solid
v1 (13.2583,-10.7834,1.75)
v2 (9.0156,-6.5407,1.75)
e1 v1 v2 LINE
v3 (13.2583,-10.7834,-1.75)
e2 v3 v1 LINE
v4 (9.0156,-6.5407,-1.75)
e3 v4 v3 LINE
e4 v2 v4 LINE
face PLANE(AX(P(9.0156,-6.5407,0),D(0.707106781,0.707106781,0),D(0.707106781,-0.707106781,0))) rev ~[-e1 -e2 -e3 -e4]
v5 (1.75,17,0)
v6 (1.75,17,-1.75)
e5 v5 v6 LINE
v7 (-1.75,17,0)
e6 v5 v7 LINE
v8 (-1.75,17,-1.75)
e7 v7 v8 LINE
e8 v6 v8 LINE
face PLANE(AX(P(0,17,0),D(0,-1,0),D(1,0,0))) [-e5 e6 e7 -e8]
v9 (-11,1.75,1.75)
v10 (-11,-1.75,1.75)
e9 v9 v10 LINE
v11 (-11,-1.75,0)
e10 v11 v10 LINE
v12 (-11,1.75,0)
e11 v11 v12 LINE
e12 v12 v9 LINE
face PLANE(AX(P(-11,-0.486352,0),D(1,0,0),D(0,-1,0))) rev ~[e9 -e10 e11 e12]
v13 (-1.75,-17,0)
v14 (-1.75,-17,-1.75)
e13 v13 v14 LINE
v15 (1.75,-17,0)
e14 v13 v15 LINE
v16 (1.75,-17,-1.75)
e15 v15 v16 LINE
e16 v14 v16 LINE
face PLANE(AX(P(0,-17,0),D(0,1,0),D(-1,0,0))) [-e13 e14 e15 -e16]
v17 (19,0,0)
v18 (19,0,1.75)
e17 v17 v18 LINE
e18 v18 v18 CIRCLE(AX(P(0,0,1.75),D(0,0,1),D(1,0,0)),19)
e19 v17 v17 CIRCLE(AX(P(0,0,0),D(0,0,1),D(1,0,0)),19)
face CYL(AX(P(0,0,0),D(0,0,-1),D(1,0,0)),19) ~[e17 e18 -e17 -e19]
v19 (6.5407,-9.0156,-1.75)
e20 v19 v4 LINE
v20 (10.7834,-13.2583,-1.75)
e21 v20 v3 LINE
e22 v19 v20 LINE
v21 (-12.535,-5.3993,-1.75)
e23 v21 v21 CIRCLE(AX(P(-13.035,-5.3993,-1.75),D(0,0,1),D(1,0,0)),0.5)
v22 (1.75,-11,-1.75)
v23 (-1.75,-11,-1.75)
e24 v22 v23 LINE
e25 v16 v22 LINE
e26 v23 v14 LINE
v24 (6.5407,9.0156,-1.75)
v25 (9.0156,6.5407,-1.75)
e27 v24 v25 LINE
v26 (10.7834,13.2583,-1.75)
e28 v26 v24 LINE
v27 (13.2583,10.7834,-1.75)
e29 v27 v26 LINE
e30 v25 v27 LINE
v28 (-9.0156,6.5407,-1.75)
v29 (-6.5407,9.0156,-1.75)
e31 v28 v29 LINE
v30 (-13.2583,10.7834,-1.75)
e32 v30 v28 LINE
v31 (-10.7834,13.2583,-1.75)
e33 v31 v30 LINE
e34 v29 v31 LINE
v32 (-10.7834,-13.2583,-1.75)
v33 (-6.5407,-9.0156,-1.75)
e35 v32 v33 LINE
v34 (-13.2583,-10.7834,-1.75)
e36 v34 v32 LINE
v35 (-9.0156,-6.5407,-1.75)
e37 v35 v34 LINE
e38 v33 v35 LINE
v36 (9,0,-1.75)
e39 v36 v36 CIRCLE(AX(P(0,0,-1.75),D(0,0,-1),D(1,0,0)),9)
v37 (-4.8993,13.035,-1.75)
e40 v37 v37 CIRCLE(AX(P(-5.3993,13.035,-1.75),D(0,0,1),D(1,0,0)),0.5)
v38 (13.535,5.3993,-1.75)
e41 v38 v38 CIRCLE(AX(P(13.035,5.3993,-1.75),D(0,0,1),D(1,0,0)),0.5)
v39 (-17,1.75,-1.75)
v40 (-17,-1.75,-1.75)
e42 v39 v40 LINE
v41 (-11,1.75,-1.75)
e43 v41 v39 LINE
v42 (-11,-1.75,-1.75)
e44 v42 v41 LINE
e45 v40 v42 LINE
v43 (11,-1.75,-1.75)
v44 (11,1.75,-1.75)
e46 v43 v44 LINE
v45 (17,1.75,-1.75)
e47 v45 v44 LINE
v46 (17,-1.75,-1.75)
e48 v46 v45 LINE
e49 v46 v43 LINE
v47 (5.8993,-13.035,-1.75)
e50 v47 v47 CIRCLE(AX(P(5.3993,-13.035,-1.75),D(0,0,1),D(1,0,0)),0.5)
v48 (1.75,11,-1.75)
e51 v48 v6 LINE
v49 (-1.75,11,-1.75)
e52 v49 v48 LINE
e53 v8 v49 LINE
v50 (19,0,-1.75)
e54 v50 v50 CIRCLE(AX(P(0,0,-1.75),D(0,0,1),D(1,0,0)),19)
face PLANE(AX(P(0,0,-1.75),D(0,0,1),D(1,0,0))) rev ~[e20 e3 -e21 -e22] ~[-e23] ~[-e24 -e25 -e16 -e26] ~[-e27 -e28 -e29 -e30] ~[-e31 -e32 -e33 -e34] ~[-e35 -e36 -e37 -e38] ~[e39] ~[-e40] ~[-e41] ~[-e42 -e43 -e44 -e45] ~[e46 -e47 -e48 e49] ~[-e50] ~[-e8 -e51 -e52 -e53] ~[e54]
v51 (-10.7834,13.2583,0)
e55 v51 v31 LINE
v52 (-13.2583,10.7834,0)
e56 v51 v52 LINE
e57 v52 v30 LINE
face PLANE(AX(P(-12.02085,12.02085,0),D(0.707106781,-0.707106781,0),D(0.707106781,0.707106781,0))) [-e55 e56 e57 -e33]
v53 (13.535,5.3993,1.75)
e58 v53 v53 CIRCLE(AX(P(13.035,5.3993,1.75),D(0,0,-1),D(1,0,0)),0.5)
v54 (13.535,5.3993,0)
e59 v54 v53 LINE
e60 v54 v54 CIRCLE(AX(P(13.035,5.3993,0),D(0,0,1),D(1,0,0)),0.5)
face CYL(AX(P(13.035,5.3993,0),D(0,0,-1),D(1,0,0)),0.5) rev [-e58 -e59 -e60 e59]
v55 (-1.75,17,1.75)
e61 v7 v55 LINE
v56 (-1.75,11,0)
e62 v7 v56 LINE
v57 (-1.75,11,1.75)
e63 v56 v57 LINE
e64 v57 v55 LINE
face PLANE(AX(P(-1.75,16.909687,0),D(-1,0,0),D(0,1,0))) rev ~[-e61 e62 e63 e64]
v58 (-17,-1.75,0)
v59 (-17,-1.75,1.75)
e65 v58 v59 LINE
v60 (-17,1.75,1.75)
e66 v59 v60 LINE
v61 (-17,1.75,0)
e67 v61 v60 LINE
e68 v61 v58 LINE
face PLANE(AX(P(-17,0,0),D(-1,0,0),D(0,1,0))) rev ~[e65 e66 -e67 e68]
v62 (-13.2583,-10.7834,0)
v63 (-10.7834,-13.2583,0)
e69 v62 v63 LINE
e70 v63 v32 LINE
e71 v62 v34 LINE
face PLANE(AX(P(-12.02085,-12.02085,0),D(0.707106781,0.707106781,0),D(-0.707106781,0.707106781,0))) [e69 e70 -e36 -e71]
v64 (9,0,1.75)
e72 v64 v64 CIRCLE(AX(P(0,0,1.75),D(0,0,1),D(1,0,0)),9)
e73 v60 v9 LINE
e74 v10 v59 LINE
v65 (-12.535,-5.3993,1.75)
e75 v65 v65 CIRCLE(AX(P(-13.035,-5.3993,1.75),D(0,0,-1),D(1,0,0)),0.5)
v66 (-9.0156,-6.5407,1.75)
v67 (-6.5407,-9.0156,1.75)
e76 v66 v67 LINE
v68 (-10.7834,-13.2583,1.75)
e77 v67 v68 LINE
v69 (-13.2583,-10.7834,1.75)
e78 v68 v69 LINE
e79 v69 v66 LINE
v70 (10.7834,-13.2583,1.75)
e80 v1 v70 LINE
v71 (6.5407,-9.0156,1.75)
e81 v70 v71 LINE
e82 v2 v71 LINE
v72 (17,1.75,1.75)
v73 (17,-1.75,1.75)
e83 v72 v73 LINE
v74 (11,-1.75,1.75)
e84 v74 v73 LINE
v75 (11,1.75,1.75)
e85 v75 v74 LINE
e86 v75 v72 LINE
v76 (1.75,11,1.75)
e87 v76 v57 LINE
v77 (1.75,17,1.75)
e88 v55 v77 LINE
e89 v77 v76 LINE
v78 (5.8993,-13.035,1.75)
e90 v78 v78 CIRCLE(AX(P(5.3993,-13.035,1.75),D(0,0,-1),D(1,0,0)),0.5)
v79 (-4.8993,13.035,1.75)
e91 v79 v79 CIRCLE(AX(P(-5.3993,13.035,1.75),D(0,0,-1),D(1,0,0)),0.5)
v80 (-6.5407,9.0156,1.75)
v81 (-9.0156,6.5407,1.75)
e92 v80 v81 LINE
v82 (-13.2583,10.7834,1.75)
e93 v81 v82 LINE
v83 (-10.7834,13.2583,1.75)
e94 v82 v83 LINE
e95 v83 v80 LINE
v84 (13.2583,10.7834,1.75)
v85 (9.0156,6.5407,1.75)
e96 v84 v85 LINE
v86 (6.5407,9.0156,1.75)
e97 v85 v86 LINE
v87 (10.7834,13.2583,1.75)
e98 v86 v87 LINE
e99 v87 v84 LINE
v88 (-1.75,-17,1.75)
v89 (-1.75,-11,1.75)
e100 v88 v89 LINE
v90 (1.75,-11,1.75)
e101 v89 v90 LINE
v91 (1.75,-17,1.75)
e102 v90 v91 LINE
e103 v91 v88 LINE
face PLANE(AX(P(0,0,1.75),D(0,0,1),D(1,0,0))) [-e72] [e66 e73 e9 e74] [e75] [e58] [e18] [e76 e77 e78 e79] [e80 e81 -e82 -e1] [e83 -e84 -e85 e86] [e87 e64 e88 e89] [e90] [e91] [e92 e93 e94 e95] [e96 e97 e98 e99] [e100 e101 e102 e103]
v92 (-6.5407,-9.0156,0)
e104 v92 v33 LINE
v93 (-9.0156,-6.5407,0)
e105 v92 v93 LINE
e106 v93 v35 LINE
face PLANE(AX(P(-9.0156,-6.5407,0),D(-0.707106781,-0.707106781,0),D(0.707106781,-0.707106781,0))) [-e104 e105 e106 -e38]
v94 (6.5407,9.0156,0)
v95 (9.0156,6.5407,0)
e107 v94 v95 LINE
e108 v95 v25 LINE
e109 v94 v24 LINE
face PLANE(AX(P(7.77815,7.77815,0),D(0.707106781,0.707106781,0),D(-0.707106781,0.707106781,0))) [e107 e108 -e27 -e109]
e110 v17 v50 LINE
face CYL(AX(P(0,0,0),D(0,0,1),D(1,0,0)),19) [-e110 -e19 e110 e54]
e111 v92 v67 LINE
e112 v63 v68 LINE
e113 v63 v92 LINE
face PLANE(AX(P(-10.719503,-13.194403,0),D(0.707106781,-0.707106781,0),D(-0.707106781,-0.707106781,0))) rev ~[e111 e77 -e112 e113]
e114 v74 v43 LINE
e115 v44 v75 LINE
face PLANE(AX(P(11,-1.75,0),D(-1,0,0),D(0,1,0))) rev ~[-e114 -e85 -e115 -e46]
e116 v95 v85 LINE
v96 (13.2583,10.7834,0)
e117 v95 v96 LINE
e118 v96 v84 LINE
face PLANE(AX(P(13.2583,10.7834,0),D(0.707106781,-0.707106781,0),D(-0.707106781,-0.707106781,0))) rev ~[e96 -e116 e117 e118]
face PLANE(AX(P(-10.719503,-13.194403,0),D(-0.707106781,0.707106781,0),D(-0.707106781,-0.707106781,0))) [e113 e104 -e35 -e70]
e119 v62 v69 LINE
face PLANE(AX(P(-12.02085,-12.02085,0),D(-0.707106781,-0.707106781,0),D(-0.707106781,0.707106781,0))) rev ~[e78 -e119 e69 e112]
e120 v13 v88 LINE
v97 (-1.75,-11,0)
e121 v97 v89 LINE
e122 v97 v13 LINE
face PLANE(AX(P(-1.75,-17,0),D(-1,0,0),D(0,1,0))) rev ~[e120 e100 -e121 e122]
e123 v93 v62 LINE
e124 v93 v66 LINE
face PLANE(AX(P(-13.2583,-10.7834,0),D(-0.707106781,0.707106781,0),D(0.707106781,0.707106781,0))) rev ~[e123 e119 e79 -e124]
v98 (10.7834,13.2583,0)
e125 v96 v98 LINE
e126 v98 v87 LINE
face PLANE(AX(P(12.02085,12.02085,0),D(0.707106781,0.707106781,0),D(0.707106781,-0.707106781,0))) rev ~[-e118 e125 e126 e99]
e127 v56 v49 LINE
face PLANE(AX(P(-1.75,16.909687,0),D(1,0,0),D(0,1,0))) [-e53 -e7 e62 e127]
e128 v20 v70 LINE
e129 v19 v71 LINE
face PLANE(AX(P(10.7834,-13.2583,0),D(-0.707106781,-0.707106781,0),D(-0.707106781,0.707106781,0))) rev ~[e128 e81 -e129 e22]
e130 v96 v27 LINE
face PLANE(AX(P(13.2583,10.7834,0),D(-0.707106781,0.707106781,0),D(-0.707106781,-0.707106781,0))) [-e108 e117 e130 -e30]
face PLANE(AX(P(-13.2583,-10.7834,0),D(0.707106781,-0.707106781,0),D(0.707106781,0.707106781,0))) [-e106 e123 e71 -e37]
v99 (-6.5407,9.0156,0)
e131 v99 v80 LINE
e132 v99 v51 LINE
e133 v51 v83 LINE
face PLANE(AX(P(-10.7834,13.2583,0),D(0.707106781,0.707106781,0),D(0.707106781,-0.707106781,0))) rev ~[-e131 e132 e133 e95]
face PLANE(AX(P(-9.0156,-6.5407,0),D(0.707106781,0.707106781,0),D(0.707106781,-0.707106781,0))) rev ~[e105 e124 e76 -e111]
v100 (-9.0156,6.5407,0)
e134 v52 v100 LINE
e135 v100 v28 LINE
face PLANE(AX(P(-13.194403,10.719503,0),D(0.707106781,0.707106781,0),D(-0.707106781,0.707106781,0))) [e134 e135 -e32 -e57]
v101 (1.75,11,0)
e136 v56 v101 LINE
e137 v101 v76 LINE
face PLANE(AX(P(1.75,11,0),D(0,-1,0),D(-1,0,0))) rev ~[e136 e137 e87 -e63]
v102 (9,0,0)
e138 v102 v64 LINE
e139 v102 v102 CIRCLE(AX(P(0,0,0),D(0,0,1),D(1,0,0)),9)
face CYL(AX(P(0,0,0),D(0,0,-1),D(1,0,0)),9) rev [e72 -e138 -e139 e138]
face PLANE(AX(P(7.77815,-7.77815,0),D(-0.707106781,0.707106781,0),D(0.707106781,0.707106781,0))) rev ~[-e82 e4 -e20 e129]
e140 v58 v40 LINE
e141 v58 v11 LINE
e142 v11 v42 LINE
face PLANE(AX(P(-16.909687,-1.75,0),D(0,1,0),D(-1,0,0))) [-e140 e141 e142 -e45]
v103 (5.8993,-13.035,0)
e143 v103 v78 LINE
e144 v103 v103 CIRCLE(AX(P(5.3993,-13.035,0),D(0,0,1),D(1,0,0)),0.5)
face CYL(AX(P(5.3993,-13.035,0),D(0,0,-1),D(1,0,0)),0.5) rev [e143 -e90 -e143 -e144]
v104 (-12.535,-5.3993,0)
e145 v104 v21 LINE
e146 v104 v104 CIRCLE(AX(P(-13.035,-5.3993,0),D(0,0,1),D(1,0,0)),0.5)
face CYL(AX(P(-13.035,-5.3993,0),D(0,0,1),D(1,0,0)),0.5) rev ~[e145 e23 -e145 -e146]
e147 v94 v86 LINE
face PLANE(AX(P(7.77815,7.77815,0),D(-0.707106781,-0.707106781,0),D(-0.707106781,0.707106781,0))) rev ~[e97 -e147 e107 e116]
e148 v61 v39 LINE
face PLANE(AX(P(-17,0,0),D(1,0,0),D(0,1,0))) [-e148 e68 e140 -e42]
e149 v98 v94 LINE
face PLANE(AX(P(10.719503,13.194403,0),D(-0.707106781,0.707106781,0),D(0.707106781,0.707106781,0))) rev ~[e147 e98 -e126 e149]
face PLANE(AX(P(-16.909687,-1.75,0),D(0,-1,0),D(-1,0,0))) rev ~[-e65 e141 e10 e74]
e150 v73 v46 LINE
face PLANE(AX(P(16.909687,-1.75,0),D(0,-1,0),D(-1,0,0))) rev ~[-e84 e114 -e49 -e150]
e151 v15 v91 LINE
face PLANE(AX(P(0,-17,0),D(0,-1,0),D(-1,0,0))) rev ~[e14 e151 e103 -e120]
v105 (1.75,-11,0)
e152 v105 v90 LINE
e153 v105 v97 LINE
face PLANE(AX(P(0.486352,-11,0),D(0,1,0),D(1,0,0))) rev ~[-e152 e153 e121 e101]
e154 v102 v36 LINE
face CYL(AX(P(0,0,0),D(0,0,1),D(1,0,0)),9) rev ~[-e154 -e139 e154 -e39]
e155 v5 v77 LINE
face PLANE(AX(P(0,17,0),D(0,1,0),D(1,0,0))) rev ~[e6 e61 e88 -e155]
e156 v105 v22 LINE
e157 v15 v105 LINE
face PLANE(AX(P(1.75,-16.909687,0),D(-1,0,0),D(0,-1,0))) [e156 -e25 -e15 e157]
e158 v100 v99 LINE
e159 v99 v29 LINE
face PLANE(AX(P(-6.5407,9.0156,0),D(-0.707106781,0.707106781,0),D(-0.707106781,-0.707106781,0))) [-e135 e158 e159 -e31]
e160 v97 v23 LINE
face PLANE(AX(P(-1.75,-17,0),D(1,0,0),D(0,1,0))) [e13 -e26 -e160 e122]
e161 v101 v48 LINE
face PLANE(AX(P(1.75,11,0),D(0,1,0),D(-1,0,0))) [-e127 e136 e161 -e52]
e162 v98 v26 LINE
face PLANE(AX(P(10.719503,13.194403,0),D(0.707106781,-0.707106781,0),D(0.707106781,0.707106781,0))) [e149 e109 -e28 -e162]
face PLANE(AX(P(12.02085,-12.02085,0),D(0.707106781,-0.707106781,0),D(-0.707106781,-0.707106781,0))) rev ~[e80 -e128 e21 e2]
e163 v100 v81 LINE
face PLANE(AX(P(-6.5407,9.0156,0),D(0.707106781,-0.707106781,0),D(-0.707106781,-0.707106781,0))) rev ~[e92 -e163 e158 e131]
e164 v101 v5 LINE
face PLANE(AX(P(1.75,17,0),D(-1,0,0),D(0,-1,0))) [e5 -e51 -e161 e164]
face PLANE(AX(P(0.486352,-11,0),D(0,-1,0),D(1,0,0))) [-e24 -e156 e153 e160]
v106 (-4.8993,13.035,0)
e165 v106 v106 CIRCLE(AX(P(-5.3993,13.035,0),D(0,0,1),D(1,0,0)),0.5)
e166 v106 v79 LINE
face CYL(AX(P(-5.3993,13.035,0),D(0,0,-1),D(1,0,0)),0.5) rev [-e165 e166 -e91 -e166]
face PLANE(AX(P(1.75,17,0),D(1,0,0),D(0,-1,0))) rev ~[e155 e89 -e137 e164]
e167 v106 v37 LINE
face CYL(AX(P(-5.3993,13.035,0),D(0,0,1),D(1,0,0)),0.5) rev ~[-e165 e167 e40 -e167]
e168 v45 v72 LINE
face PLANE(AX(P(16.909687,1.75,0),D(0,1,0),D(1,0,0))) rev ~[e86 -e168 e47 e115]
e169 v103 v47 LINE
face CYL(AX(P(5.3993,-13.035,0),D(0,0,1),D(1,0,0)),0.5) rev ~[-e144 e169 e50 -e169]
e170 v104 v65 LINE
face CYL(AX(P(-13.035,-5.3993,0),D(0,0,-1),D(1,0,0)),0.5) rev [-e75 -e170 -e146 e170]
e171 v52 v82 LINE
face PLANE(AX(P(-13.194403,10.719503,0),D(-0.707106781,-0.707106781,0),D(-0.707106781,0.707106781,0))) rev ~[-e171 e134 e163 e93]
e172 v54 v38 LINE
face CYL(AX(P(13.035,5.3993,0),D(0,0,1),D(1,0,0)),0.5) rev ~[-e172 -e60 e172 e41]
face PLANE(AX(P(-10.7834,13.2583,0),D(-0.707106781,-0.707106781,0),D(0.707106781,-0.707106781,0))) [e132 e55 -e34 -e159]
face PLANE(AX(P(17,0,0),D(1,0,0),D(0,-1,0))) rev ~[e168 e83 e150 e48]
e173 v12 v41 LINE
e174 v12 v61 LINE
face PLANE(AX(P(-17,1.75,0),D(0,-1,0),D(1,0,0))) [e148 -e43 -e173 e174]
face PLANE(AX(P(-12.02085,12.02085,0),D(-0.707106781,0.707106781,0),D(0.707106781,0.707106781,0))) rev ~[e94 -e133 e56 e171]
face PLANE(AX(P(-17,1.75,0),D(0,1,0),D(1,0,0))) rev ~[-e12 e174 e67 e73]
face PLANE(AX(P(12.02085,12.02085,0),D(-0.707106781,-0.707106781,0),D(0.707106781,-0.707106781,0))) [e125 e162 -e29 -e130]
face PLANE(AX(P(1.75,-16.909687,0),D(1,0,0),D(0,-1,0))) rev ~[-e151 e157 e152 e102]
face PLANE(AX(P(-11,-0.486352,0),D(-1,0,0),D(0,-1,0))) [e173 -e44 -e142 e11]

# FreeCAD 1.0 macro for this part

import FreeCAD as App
import Part
import Sketcher
from FreeCAD import Vector


def add_polygon(sketch, points):
    """Adds a closed chain of lines whose ends are joined by coincident constraints."""
    first, n = sketch.GeometryCount, len(points)
    for a, b in zip(points, points[1:] + points[:1]):
        sketch.addGeometry(Part.LineSegment(App.Vector(*a, 0), App.Vector(*b, 0)), False)
    for i in range(n):
        sketch.addConstraint(Sketcher.Constraint("Coincident", first + i, 2, first + (i + 1) % n, 1))

doc = App.newDocument("Part")
params = doc.addObject("Spreadsheet::Sheet", "Params")
for row, (alias, value) in enumerate([
    ("sketch1_diameter", "1 mm"),
    ("sketch1_width", "6 mm"),
    ("sketch1_length", "6 mm"),
    ("sketch1_diameter2", "38 mm"),
    ("sketch1_diameter3", "18 mm"),
    ("pad1_length", "3.5 mm"),
], start=1):
    params.set(f"A{row}", alias)
    params.set(f"B{row}", "=" + value)
    params.setAlias(f"B{row}", alias)

body = doc.addObject("PartDesign::Body", "Body")

sketch1 = body.newObject("Sketcher::SketchObject", "Sketch")
sketch1.AttachmentSupport = (doc.getObject("XY_Plane"), [""])
sketch1.MapMode = "FlatFace"
sketch1.addGeometry(Part.Circle(Vector(0, 0, 0), Vector(0, 0, 1), 19), False)
add_polygon(sketch1, [(11, -1.8), (11, 1.8), (17, 1.8), (17, -1.8)])
add_polygon(sketch1, [(9, -6.5), (13.3, -10.8), (10.8, -13.3), (6.5, -9)])
sketch1.addGeometry(Part.Circle(Vector(0, 0, 0), Vector(0, 0, 1), 9), False)
add_polygon(sketch1, [(13.3, 10.8), (9, 6.5), (6.5, 9), (10.8, 13.3)])
add_polygon(sketch1, [(1.8, 17), (1.8, 11), (-1.8, 11), (-1.8, 17)])
add_polygon(sketch1, [(-10.8, 13.3), (-6.5, 9), (-9, 6.5), (-13.3, 10.8)])
add_polygon(sketch1, [(-17, 1.8), (-11, 1.8), (-11, -1.8), (-17, -1.8)])
add_polygon(sketch1, [(-13.3, -10.8), (-9, -6.5), (-6.5, -9), (-10.8, -13.3)])
add_polygon(sketch1, [(-1.8, -17), (-1.8, -11), (1.8, -11), (1.8, -17)])
sketch1.addGeometry(Part.Circle(Vector(5.4, -13, 0), Vector(0, 0, 1), 0.5), False)
sketch1.addGeometry(Part.Circle(Vector(13, 5.4, 0), Vector(0, 0, 1), 0.5), False)
sketch1.addGeometry(Part.Circle(Vector(-13, -5.4, 0), Vector(0, 0, 1), 0.5), False)
sketch1.addGeometry(Part.Circle(Vector(-5.4, 13, 0), Vector(0, 0, 1), 0.5), False)
sketch1.addConstraint([
    Sketcher.Constraint("Vertical", 1),
    Sketcher.Constraint("Horizontal", 2),
    Sketcher.Constraint("Vertical", 3),
    Sketcher.Constraint("Horizontal", 4),
    Sketcher.Constraint("Vertical", 14),
    Sketcher.Constraint("Horizontal", 15),
    Sketcher.Constraint("Vertical", 16),
    Sketcher.Constraint("Horizontal", 17),
    Sketcher.Constraint("Horizontal", 22),
    Sketcher.Constraint("Vertical", 23),
    Sketcher.Constraint("Horizontal", 24),
    Sketcher.Constraint("Vertical", 25),
    Sketcher.Constraint("Vertical", 30),
    Sketcher.Constraint("Horizontal", 31),
    Sketcher.Constraint("Vertical", 32),
    Sketcher.Constraint("Horizontal", 33),
    Sketcher.Constraint("Coincident", 0, 3, -1, 1),
    Sketcher.Constraint("Coincident", 9, 3, -1, 1),
    Sketcher.Constraint("Equal", 34, 35),
    Sketcher.Constraint("Equal", 35, 36),
    Sketcher.Constraint("Equal", 36, 37),
    Sketcher.Constraint("Symmetric", 35, 3, 36, 3, -1, 1),
    Sketcher.Constraint("Symmetric", 34, 3, 37, 3, -1, 1),
    Sketcher.Constraint("Symmetric", 7, 2, 18, 2, -1, 1),
    Sketcher.Constraint("Symmetric", 8, 2, 19, 2, -1, 1),
    Sketcher.Constraint("Symmetric", 5, 2, 20, 2, -1, 1),
    Sketcher.Constraint("Symmetric", 6, 2, 21, 2, -1, 1),
    Sketcher.Constraint("Symmetric", 4, 2, 22, 2, -1, 1),
    Sketcher.Constraint("Symmetric", 2, 2, 24, 2, -1, 1),
    Sketcher.Constraint("Symmetric", 10, 2, 26, 2, -1, 1),
    Sketcher.Constraint("Symmetric", 11, 2, 27, 2, -1, 1),
    Sketcher.Constraint("Symmetric", 12, 2, 28, 2, -1, 1),
    Sketcher.Constraint("Symmetric", 13, 2, 29, 2, -1, 1),
    Sketcher.Constraint("Symmetric", 14, 2, 30, 2, -1, 1),
    Sketcher.Constraint("Symmetric", 16, 2, 32, 2, -1, 1),
    Sketcher.Constraint("Symmetric", 11, 2, 18, 2, -2),
    Sketcher.Constraint("Symmetric", 10, 2, 19, 2, -2),
    Sketcher.Constraint("Symmetric", 13, 2, 20, 2, -2),
    Sketcher.Constraint("Symmetric", 12, 2, 21, 2, -2),
    Sketcher.Constraint("Perpendicular", 5, 6),
    Sketcher.Constraint("Perpendicular", 6, 7),
    Sketcher.Constraint("Perpendicular", 7, 8),
    Sketcher.Constraint("Parallel", 8, 10),
    Sketcher.Constraint("Horizontal", 2, 2, 22, 2),
    Sketcher.Constraint("Vertical", 16, 2, 30, 2),
    Sketcher.Constraint("Equal", 33, 1),
    Sketcher.Constraint("Equal", 24, 14),
    Sketcher.Constraint("Diameter", 34, 1.0),
    Sketcher.Constraint("DistanceX", 2, 1, 2, 2, 6.0),
    Sketcher.Constraint("Distance", 5, 6.0),
    Sketcher.Constraint("Diameter", 0, 38.0),
    Sketcher.Constraint("Diameter", 9, 18.0),
    Sketcher.Constraint("DistanceX", 15, 2, 15, 1, 3.5),
    Sketcher.Constraint("Distance", 6, 3.5),
    Sketcher.Constraint("DistanceX", -1, 1, 1, 2, 11.0),
    Sketcher.Constraint("DistanceY", -1, 1, 14, 2, 11.0),
    Sketcher.Constraint("DistanceX", 36, 3, 35, 3, 26.07),
    Sketcher.Constraint("DistanceY", 34, 3, 37, 3, 26.07),
    Sketcher.Constraint("DistanceX", 34, 3, 5, 2, 7.859),
    Sketcher.Constraint("DistanceY", 35, 3, 12, 2, 7.859),
    Sketcher.Constraint("DistanceX", -1, 1, 34, 3, 5.3993),
    Sketcher.Constraint("DistanceY", -1, 1, 35, 3, 5.3993),
])
sketch1.setExpression("Constraints[79]", "Params.sketch1_diameter")
sketch1.setExpression("Constraints[80]", "Params.sketch1_width")
sketch1.setExpression("Constraints[81]", "Params.sketch1_length")
sketch1.setExpression("Constraints[82]", "Params.sketch1_diameter2")
sketch1.setExpression("Constraints[83]", "Params.sketch1_diameter3")
pad1 = body.newObject("PartDesign::Pad", "Pad")
pad1.Profile = sketch1
pad1.setExpression("Length", "Params.pad1_length")
pad1.Midplane = True

doc.recompute()
